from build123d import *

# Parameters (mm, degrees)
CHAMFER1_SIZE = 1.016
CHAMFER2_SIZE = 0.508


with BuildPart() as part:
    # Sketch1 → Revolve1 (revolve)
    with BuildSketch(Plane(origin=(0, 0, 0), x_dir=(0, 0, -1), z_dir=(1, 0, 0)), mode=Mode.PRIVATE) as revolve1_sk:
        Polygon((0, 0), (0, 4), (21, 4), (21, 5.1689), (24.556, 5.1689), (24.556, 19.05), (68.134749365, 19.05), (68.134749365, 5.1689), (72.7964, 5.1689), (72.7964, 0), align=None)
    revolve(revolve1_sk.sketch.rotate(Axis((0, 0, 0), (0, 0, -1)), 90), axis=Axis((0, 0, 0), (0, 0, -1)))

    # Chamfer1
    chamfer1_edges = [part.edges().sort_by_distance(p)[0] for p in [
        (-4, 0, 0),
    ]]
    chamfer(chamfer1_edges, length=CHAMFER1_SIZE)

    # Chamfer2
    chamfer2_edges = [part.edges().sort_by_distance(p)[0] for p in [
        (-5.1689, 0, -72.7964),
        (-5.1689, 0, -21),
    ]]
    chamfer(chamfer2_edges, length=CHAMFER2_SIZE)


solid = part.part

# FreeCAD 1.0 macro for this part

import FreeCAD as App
import Part
import Sketcher

V = App.Vector
Q = App.Units.Quantity


def edges_at(feature, points):
    """Names of the edges that pass closest to the given points."""
    edges = feature.Shape.Edges
    near = lambda p: min(range(len(edges)), key=lambda i: edges[i].distToShape(Part.Vertex(*p))[0])
    return sorted({f"Edge{near(p) + 1}" for p in points})

doc = App.newDocument("Part")
body = doc.addObject("PartDesign::Body", "Body")

sketch1 = body.newObject("Sketcher::SketchObject", "Sketch")
sketch1.AttachmentSupport = (doc.getObject("YZ_Plane"), [""])
sketch1.MapMode = "FlatFace"
sketch1.addGeometry(Part.LineSegment(V(4, 0, 0), V(0, 0, 0)), False)
sketch1.addGeometry(Part.LineSegment(V(0, 0, 0), V(0, -72.7964, 0)), False)
sketch1.addGeometry(Part.LineSegment(V(0, -72.7964, 0), V(5.1689, -72.7964, 0)), False)
sketch1.addGeometry(Part.LineSegment(V(5.1689, -72.7964, 0), V(5.1689, -68.134749, 0)), False)
sketch1.addGeometry(Part.LineSegment(V(5.1689, -68.134749, 0), V(19.05, -68.134749, 0)), False)
sketch1.addGeometry(Part.LineSegment(V(19.05, -68.134749, 0), V(19.05, -24.556, 0)), False)
sketch1.addGeometry(Part.LineSegment(V(19.05, -24.556, 0), V(5.1689, -24.556, 0)), False)
sketch1.addGeometry(Part.LineSegment(V(5.1689, -24.556, 0), V(5.1689, -21, 0)), False)
sketch1.addGeometry(Part.LineSegment(V(5.1689, -21, 0), V(4, -21, 0)), False)
sketch1.addGeometry(Part.LineSegment(V(4, -21, 0), V(4, 0, 0)), False)
sketch1.addConstraint(Sketcher.Constraint("Coincident", 0, 2, 1, 1))
sketch1.addConstraint(Sketcher.Constraint("Coincident", 1, 2, 2, 1))
sketch1.addConstraint(Sketcher.Constraint("Coincident", 2, 2, 3, 1))
sketch1.addConstraint(Sketcher.Constraint("Coincident", 3, 2, 4, 1))
sketch1.addConstraint(Sketcher.Constraint("Coincident", 4, 2, 5, 1))
sketch1.addConstraint(Sketcher.Constraint("Coincident", 5, 2, 6, 1))
sketch1.addConstraint(Sketcher.Constraint("Coincident", 6, 2, 7, 1))
sketch1.addConstraint(Sketcher.Constraint("Coincident", 7, 2, 8, 1))
sketch1.addConstraint(Sketcher.Constraint("Coincident", 8, 2, 9, 1))
sketch1.addConstraint(Sketcher.Constraint("Coincident", 9, 2, 0, 1))
sketch1.addConstraint(Sketcher.Constraint("Horizontal", 0))
sketch1.addConstraint(Sketcher.Constraint("Vertical", 1))
sketch1.addConstraint(Sketcher.Constraint("Horizontal", 2))
sketch1.addConstraint(Sketcher.Constraint("Vertical", 3))
sketch1.addConstraint(Sketcher.Constraint("Horizontal", 4))
sketch1.addConstraint(Sketcher.Constraint("Vertical", 5))
sketch1.addConstraint(Sketcher.Constraint("Horizontal", 6))
sketch1.addConstraint(Sketcher.Constraint("Vertical", 7))
sketch1.addConstraint(Sketcher.Constraint("Horizontal", 8))
sketch1.addConstraint(Sketcher.Constraint("Vertical", 9))
sketch1.addConstraint(Sketcher.Constraint("Coincident", 0, 2, -1, 1))
sketch1.addConstraint(Sketcher.Constraint("Vertical", 3, 2, 6, 2))
sketch1.addConstraint(Sketcher.Constraint("DistanceY", 7, 1, 7, 2, Q("0.14 in")))
sketch1.addConstraint(Sketcher.Constraint("DistanceY", 1, 2, 1, 1, Q("2.866 in")))
sketch1.addConstraint(Sketcher.Constraint("DistanceX", -1, 1, 4, 2, Q("0.75 in")))
sketch1.addConstraint(Sketcher.Constraint("DistanceX", 2, 1, 2, 2, Q("0.2035 in")))
sketch1.addConstraint(Sketcher.Constraint("DistanceX", 0, 2, 0, 1, 4.0))
sketch1.addConstraint(Sketcher.Constraint("DistanceY", 9, 1, 9, 2, 21.0))
sketch1.addConstraint(Sketcher.Constraint("DistanceY", 3, 1, 3, 2, 4.661651))
revolution = body.newObject("PartDesign::Revolution", "Revolution")
revolution.Profile = sketch1
revolution.ReferenceAxis = (sketch1, ["V_Axis"])
revolution.Angle = 360
doc.recompute()

chamfer = body.newObject("PartDesign::Chamfer", "Chamfer")
chamfer.Base = (revolution, edges_at(revolution, [(-4, 0, 0)]))
chamfer.Size = Q("0.04 in")
doc.recompute()

chamfer2 = body.newObject("PartDesign::Chamfer", "Chamfer001")
chamfer2.Base = (chamfer, edges_at(chamfer, [(-5.169, 0, -72.796), (-5.169, 0, -21)]))
chamfer2.Size = Q("0.02 in")

doc.recompute()
